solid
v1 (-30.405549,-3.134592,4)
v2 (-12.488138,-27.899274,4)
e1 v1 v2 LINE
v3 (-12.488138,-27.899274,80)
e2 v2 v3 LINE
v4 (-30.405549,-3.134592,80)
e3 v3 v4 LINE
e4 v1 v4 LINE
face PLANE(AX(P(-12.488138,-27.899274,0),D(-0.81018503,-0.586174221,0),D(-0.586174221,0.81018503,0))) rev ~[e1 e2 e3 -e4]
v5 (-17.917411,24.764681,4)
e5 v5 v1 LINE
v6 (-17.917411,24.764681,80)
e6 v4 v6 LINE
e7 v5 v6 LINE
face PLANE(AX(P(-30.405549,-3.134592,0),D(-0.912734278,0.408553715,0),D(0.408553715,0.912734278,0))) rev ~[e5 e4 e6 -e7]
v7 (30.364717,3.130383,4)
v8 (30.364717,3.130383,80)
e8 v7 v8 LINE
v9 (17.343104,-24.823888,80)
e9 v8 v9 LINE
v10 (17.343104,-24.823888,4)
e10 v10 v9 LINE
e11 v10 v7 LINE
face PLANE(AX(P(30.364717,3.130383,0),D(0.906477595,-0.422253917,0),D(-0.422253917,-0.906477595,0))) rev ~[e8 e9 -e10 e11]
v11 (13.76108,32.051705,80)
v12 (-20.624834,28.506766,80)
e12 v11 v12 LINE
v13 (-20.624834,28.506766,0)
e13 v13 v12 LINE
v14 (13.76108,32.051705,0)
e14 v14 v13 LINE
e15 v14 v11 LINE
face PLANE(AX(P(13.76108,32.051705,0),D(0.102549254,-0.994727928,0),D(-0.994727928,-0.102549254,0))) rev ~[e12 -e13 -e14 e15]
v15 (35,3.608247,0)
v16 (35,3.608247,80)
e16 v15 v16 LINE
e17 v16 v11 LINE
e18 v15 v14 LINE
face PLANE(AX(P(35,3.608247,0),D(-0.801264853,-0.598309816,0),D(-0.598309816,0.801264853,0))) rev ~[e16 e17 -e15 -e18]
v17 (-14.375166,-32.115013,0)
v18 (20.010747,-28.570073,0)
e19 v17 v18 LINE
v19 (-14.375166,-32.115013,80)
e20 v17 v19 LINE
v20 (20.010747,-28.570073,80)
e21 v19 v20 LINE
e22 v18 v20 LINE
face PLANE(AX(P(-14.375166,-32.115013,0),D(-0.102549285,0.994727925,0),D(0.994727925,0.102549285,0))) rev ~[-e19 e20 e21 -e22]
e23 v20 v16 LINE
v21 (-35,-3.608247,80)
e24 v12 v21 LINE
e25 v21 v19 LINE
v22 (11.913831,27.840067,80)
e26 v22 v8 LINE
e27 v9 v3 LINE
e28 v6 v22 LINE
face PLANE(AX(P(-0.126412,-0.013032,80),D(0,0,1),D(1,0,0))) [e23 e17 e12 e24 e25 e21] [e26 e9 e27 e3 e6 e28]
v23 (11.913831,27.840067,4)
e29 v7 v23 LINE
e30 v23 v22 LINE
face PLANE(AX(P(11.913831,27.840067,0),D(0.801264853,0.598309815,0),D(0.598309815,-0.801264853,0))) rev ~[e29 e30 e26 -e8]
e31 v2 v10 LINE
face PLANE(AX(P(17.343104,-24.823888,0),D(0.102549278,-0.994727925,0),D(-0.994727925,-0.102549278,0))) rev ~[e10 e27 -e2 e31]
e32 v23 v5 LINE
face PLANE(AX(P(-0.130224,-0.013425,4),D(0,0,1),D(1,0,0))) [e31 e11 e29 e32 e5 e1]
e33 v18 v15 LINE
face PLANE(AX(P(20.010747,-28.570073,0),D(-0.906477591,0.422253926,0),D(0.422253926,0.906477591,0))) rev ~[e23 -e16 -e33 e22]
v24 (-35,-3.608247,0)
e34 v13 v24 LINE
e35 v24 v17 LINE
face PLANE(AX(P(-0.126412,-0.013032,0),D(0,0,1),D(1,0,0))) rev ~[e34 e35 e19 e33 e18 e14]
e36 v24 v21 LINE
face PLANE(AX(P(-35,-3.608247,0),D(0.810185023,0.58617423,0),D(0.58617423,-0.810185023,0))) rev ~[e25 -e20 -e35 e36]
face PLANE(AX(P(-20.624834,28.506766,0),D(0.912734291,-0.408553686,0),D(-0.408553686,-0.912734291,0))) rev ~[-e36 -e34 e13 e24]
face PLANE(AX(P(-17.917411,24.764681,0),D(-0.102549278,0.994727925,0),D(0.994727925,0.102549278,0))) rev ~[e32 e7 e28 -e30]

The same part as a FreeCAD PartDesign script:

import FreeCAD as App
import Part
import Sketcher

V = App.Vector
Q = App.Units.Quantity


def add_polygon(sketch, points):
    """Adds a closed chain of lines whose ends are joined by coincident constraints."""
    first, n = sketch.GeometryCount, len(points)
    for a, b in zip(points, points[1:] + points[:1]):
        sketch.addGeometry(Part.LineSegment(App.Vector(*a, 0), App.Vector(*b, 0)), False)
    for i in range(n):
        sketch.addConstraint(Sketcher.Constraint("Coincident", first + i, 2, first + (i + 1) % n, 1))

doc = App.newDocument("Part")
body = doc.addObject("PartDesign::Body", "Body")

sketch1 = doc.addObject("Sketcher::SketchObject", "Sketch")
body.addObject(sketch1)
sketch1.AttachmentSupport = (doc.XY_Plane, [""])
sketch1.MapMode = "FlatFace"
add_polygon(sketch1, [(-30.405549, -3.134592), (-12.488138, -27.899274), (17.343104, -24.823888), (30.364717, 3.130383), (11.913831, 27.840067), (-17.917411, 24.764681)])
sketch1.addConstraint(Sketcher.Constraint("Parallel", 1, 4))
sketch1.addConstraint(Sketcher.Constraint("Equal", 2, 3))
sketch1.addConstraint(Sketcher.Constraint("Equal", 1, 4))
sketch1.addConstraint(Sketcher.Constraint("Equal", 0, 5))
sketch1.addConstraint(Sketcher.Constraint("Distance", 0, Q("30.566699 mm")))
sketch1.addConstraint(Sketcher.Constraint("DistanceY", 2, 2, 4, 2, Q("21.634298 mm")))
sketch1.addConstraint(Sketcher.Constraint("Distance", 1, Q("29.989348 mm")))
sketch1.addConstraint(Sketcher.Constraint("DistanceY", 1, 2, -1, 1, Q("24.823888 mm")))
sketch1.addConstraint(Sketcher.Constraint("DistanceX", -1, 1, 3, 2, Q("11.913831 mm")))
sketch1.addConstraint(Sketcher.Constraint("DistanceX", 4, 2, -1, 1, Q("17.917411 mm")))
sketch1.addConstraint(Sketcher.Constraint("DistanceY", -1, 1, 4, 2, Q("24.764681 mm")))
sketch1.addConstraint(Sketcher.Constraint("DistanceX", 5, 2, -1, 1, Q("30.405549 mm")))
pad1 = doc.addObject("PartDesign::Pad", "Pad")
body.addObject(pad1)
pad1.Profile = sketch1
pad1.Length = 4

sketch2 = doc.addObject("Sketcher::SketchObject", "Sketch001")
body.addObject(sketch2)
sketch2.AttachmentSupport = (doc.XY_Plane, [""])
sketch2.MapMode = "FlatFace"
add_polygon(sketch2, [(13.76108, 32.051705), (-20.624834, 28.506766), (-35, -3.608247), (-14.375166, -32.115013), (20.010747, -28.570073), (35, 3.608247)])
add_polygon(sketch2, [(30.364717, 3.130383), (17.343104, -24.823888), (-12.488138, -27.899274), (-30.405549, -3.134592), (-17.917411, 24.764681), (11.913831, 27.840067)])
sketch2.addConstraint(Sketcher.Constraint("Symmetric", 1, 2, 4, 2, -1, 1))
sketch2.addConstraint(Sketcher.Constraint("Parallel", 0, 3))
sketch2.addConstraint(Sketcher.Constraint("Parallel", 4, 6))
sketch2.addConstraint(Sketcher.Constraint("Parallel", 3, 7))
sketch2.addConstraint(Sketcher.Constraint("Parallel", 2, 8))
sketch2.addConstraint(Sketcher.Constraint("Parallel", 1, 9))
sketch2.addConstraint(Sketcher.Constraint("Parallel", 7, 10))
sketch2.addConstraint(Sketcher.Constraint("Parallel", 5, 11))
sketch2.addConstraint(Sketcher.Constraint("Equal", 1, 2))
sketch2.addConstraint(Sketcher.Constraint("Equal", 0, 3))
sketch2.addConstraint(Sketcher.Constraint("Equal", 4, 5))
sketch2.addConstraint(Sketcher.Constraint("Equal", 8, 9))
sketch2.addConstraint(Sketcher.Constraint("Equal", 7, 10))
sketch2.addConstraint(Sketcher.Constraint("DistanceX", 1, 2, -1, 1, Q("35 mm")))
sketch2.addConstraint(Sketcher.Constraint("Distance", 1, Q("35.185501 mm")))
sketch2.addConstraint(Sketcher.Constraint("Distance", 8, Q("30.566699 mm")))
sketch2.addConstraint(Sketcher.Constraint("DistanceY", 3, 2, 7, 2, Q("0.670799 mm")))
sketch2.addConstraint(Sketcher.Constraint("DistanceY", 10, 2, 0, 2, Q("0.666699 mm")))
sketch2.addConstraint(Sketcher.Constraint("Distance", 0, Q("34.56816 mm")))
sketch2.addConstraint(Sketcher.Constraint("Distance", 7, Q("29.989348 mm")))
sketch2.addConstraint(Sketcher.Constraint("DistanceX", -1, 1, 5, 2, Q("13.76108 mm")))
sketch2.addConstraint(Sketcher.Constraint("DistanceY", 6, 2, -1, 1, Q("24.823888 mm")))
sketch2.addConstraint(Sketcher.Constraint("DistanceX", 8, 2, -1, 1, Q("30.405549 mm")))
pad2 = doc.addObject("PartDesign::Pad", "Pad001")
body.addObject(pad2)
pad2.Profile = sketch2
pad2.Length = 80

doc.recompute()
